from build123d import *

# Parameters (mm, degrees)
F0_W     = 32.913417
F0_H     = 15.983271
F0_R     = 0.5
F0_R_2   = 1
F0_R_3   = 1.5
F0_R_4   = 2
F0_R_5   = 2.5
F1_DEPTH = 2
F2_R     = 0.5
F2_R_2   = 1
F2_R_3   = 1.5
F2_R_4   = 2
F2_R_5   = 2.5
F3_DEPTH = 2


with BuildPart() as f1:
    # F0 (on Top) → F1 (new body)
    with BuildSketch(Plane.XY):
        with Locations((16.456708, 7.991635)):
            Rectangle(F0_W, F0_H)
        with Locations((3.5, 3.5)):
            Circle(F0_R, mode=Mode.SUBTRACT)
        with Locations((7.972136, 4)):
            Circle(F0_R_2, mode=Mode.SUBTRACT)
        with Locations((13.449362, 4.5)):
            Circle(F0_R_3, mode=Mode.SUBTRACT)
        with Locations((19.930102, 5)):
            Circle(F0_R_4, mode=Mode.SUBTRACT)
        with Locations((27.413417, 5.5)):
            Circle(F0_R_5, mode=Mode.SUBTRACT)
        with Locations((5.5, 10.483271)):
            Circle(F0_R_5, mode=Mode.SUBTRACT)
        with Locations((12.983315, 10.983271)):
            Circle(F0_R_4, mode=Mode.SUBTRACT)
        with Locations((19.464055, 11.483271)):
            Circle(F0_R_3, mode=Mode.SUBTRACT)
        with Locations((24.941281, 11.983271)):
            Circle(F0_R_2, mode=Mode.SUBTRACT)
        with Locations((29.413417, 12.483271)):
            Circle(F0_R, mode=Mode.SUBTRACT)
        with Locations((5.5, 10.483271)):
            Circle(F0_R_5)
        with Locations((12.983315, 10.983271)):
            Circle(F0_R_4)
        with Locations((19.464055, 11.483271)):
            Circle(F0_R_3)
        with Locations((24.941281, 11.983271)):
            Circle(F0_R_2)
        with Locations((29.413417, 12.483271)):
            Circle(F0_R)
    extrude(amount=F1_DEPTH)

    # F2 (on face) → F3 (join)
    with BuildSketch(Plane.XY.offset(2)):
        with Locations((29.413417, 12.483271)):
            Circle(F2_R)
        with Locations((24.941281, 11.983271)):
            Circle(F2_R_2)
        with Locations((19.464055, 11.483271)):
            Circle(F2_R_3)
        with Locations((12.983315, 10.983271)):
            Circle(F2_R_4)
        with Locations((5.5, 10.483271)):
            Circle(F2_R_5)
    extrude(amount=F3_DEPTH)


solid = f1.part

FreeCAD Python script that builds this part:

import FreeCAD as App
import Part
import Sketcher

V = App.Vector
Q = App.Units.Quantity


def add_polygon(sketch, points):
    """Adds a closed chain of lines whose ends are joined by coincident constraints."""
    first, n = sketch.GeometryCount, len(points)
    for a, b in zip(points, points[1:] + points[:1]):
        sketch.addGeometry(Part.LineSegment(App.Vector(*a, 0), App.Vector(*b, 0)), False)
    for i in range(n):
        sketch.addConstraint(Sketcher.Constraint("Coincident", first + i, 2, first + (i + 1) % n, 1))

doc = App.newDocument("Part")
body = doc.addObject("PartDesign::Body", "Body")

sketch1 = body.newObject("Sketcher::SketchObject", "Sketch")
sketch1.AttachmentSupport = (doc.getObject("XY_Plane"), [""])
sketch1.MapMode = "FlatFace"
add_polygon(sketch1, [(0, 16), (0, 0), (32.9, 0), (32.9, 16)])
sketch1.addGeometry(Part.Circle(V(3.5, 3.5, 0), V(0, 0, 1), 0.5), False)
sketch1.addGeometry(Part.Circle(V(8, 4, 0), V(0, 0, 1), 1), False)
sketch1.addGeometry(Part.Circle(V(13.4, 4.5, 0), V(0, 0, 1), 1.5), False)
sketch1.addGeometry(Part.Circle(V(19.9, 5, 0), V(0, 0, 1), 2), False)
sketch1.addGeometry(Part.Circle(V(27.4, 5.5, 0), V(0, 0, 1), 2.5), False)
sketch1.addConstraint(Sketcher.Constraint("Vertical", 0))
sketch1.addConstraint(Sketcher.Constraint("Horizontal", 1))
sketch1.addConstraint(Sketcher.Constraint("Vertical", 2))
sketch1.addConstraint(Sketcher.Constraint("Horizontal", 3))
sketch1.addConstraint(Sketcher.Constraint("Coincident", 0, 2, -1, 1))
sketch1.addConstraint(Sketcher.Constraint("Diameter", 4, Q("1 mm")))
sketch1.addConstraint(Sketcher.Constraint("Diameter", 5, Q("2 mm")))
sketch1.addConstraint(Sketcher.Constraint("Diameter", 6, Q("3 mm")))
sketch1.addConstraint(Sketcher.Constraint("Diameter", 7, Q("4 mm")))
sketch1.addConstraint(Sketcher.Constraint("Diameter", 8, Q("5 mm")))
sketch1.addConstraint(Sketcher.Constraint("DistanceY", -1, 1, 5, 3, Q("4 mm")))
sketch1.addConstraint(Sketcher.Constraint("DistanceY", -1, 1, 7, 3, Q("5 mm")))
sketch1.addConstraint(Sketcher.Constraint("DistanceY", 4, 3, 6, 3, Q("1 mm")))
sketch1.addConstraint(Sketcher.Constraint("DistanceY", 6, 3, 8, 3, Q("1 mm")))
sketch1.addConstraint(Sketcher.Constraint("DistanceX", -1, 1, 4, 3, Q("3.5 mm")))
sketch1.addConstraint(Sketcher.Constraint("DistanceY", -1, 1, 4, 3, Q("3.5 mm")))
sketch1.addConstraint(Sketcher.Constraint("DistanceX", 8, 3, 1, 2, Q("5.499999 mm")))
sketch1.addConstraint(Sketcher.Constraint("DistanceY", 0, 2, 0, 1, Q("15.983271 mm")))
sketch1.addConstraint(Sketcher.Constraint("DistanceX", 1, 1, 1, 2, Q("32.913417 mm")))
sketch1.addConstraint(Sketcher.Constraint("DistanceX", 6, 3, 7, 3, Q("6.48074 mm")))
sketch1.addConstraint(Sketcher.Constraint("DistanceX", 5, 3, 8, 3, Q("19.441281 mm")))
sketch1.addConstraint(Sketcher.Constraint("DistanceX", -1, 1, 6, 3, Q("13.449362 mm")))
pad1 = body.newObject("PartDesign::Pad", "Pad")
pad1.Profile = sketch1
pad1.Length = 2

sketch2 = body.newObject("Sketcher::SketchObject", "Sketch001")
sketch2.AttachmentSupport = (doc.getObject("XY_Plane"), [""])
sketch2.MapMode = "FlatFace"
sketch2.AttachmentOffset = App.Placement(V(0, 0, 2), App.Rotation())
sketch2.addGeometry(Part.Circle(V(29.4, 12.5, 0), V(0, 0, 1), 0.5), False)
sketch2.addGeometry(Part.Circle(V(24.9, 12, 0), V(0, 0, 1), 1), False)
sketch2.addGeometry(Part.Circle(V(19.5, 11.5, 0), V(0, 0, 1), 1.5), False)
sketch2.addGeometry(Part.Circle(V(13, 11, 0), V(0, 0, 1), 2), False)
sketch2.addGeometry(Part.Circle(V(5.5, 10.5, 0), V(0, 0, 1), 2.5), False)
sketch2.addConstraint(Sketcher.Constraint("Diameter", 0, Q("1 mm")))
sketch2.addConstraint(Sketcher.Constraint("Diameter", 1, Q("2 mm")))
sketch2.addConstraint(Sketcher.Constraint("Diameter", 2, Q("3 mm")))
sketch2.addConstraint(Sketcher.Constraint("Diameter", 3, Q("4 mm")))
sketch2.addConstraint(Sketcher.Constraint("Diameter", 4, Q("5 mm")))
sketch2.addConstraint(Sketcher.Constraint("DistanceY", 2, 3, 0, 3, Q("1 mm")))
sketch2.addConstraint(Sketcher.Constraint("DistanceY", 3, 3, 1, 3, Q("1 mm")))
sketch2.addConstraint(Sketcher.Constraint("DistanceY", 4, 3, 2, 3, Q("1 mm")))
sketch2.addConstraint(Sketcher.Constraint("DistanceX", -1, 1, 4, 3, Q("5.5 mm")))
sketch2.addConstraint(Sketcher.Constraint("DistanceY", 1, 3, 0, 3, Q("0.5 mm")))
sketch2.addConstraint(Sketcher.Constraint("DistanceX", 3, 3, 0, 3, Q("16.430102 mm")))
sketch2.addConstraint(Sketcher.Constraint("DistanceY", -1, 1, 0, 3, Q("12.483271 mm")))
sketch2.addConstraint(Sketcher.Constraint("DistanceX", -1, 1, 1, 3, Q("24.941281 mm")))
sketch2.addConstraint(Sketcher.Constraint("DistanceX", 3, 3, 2, 3, Q("6.48074 mm")))
sketch2.addConstraint(Sketcher.Constraint("DistanceX", -1, 1, 0, 3, Q("29.413417 mm")))
pad2 = body.newObject("PartDesign::Pad", "Pad001")
pad2.Profile = sketch2
pad2.Length = 2

doc.recompute()
